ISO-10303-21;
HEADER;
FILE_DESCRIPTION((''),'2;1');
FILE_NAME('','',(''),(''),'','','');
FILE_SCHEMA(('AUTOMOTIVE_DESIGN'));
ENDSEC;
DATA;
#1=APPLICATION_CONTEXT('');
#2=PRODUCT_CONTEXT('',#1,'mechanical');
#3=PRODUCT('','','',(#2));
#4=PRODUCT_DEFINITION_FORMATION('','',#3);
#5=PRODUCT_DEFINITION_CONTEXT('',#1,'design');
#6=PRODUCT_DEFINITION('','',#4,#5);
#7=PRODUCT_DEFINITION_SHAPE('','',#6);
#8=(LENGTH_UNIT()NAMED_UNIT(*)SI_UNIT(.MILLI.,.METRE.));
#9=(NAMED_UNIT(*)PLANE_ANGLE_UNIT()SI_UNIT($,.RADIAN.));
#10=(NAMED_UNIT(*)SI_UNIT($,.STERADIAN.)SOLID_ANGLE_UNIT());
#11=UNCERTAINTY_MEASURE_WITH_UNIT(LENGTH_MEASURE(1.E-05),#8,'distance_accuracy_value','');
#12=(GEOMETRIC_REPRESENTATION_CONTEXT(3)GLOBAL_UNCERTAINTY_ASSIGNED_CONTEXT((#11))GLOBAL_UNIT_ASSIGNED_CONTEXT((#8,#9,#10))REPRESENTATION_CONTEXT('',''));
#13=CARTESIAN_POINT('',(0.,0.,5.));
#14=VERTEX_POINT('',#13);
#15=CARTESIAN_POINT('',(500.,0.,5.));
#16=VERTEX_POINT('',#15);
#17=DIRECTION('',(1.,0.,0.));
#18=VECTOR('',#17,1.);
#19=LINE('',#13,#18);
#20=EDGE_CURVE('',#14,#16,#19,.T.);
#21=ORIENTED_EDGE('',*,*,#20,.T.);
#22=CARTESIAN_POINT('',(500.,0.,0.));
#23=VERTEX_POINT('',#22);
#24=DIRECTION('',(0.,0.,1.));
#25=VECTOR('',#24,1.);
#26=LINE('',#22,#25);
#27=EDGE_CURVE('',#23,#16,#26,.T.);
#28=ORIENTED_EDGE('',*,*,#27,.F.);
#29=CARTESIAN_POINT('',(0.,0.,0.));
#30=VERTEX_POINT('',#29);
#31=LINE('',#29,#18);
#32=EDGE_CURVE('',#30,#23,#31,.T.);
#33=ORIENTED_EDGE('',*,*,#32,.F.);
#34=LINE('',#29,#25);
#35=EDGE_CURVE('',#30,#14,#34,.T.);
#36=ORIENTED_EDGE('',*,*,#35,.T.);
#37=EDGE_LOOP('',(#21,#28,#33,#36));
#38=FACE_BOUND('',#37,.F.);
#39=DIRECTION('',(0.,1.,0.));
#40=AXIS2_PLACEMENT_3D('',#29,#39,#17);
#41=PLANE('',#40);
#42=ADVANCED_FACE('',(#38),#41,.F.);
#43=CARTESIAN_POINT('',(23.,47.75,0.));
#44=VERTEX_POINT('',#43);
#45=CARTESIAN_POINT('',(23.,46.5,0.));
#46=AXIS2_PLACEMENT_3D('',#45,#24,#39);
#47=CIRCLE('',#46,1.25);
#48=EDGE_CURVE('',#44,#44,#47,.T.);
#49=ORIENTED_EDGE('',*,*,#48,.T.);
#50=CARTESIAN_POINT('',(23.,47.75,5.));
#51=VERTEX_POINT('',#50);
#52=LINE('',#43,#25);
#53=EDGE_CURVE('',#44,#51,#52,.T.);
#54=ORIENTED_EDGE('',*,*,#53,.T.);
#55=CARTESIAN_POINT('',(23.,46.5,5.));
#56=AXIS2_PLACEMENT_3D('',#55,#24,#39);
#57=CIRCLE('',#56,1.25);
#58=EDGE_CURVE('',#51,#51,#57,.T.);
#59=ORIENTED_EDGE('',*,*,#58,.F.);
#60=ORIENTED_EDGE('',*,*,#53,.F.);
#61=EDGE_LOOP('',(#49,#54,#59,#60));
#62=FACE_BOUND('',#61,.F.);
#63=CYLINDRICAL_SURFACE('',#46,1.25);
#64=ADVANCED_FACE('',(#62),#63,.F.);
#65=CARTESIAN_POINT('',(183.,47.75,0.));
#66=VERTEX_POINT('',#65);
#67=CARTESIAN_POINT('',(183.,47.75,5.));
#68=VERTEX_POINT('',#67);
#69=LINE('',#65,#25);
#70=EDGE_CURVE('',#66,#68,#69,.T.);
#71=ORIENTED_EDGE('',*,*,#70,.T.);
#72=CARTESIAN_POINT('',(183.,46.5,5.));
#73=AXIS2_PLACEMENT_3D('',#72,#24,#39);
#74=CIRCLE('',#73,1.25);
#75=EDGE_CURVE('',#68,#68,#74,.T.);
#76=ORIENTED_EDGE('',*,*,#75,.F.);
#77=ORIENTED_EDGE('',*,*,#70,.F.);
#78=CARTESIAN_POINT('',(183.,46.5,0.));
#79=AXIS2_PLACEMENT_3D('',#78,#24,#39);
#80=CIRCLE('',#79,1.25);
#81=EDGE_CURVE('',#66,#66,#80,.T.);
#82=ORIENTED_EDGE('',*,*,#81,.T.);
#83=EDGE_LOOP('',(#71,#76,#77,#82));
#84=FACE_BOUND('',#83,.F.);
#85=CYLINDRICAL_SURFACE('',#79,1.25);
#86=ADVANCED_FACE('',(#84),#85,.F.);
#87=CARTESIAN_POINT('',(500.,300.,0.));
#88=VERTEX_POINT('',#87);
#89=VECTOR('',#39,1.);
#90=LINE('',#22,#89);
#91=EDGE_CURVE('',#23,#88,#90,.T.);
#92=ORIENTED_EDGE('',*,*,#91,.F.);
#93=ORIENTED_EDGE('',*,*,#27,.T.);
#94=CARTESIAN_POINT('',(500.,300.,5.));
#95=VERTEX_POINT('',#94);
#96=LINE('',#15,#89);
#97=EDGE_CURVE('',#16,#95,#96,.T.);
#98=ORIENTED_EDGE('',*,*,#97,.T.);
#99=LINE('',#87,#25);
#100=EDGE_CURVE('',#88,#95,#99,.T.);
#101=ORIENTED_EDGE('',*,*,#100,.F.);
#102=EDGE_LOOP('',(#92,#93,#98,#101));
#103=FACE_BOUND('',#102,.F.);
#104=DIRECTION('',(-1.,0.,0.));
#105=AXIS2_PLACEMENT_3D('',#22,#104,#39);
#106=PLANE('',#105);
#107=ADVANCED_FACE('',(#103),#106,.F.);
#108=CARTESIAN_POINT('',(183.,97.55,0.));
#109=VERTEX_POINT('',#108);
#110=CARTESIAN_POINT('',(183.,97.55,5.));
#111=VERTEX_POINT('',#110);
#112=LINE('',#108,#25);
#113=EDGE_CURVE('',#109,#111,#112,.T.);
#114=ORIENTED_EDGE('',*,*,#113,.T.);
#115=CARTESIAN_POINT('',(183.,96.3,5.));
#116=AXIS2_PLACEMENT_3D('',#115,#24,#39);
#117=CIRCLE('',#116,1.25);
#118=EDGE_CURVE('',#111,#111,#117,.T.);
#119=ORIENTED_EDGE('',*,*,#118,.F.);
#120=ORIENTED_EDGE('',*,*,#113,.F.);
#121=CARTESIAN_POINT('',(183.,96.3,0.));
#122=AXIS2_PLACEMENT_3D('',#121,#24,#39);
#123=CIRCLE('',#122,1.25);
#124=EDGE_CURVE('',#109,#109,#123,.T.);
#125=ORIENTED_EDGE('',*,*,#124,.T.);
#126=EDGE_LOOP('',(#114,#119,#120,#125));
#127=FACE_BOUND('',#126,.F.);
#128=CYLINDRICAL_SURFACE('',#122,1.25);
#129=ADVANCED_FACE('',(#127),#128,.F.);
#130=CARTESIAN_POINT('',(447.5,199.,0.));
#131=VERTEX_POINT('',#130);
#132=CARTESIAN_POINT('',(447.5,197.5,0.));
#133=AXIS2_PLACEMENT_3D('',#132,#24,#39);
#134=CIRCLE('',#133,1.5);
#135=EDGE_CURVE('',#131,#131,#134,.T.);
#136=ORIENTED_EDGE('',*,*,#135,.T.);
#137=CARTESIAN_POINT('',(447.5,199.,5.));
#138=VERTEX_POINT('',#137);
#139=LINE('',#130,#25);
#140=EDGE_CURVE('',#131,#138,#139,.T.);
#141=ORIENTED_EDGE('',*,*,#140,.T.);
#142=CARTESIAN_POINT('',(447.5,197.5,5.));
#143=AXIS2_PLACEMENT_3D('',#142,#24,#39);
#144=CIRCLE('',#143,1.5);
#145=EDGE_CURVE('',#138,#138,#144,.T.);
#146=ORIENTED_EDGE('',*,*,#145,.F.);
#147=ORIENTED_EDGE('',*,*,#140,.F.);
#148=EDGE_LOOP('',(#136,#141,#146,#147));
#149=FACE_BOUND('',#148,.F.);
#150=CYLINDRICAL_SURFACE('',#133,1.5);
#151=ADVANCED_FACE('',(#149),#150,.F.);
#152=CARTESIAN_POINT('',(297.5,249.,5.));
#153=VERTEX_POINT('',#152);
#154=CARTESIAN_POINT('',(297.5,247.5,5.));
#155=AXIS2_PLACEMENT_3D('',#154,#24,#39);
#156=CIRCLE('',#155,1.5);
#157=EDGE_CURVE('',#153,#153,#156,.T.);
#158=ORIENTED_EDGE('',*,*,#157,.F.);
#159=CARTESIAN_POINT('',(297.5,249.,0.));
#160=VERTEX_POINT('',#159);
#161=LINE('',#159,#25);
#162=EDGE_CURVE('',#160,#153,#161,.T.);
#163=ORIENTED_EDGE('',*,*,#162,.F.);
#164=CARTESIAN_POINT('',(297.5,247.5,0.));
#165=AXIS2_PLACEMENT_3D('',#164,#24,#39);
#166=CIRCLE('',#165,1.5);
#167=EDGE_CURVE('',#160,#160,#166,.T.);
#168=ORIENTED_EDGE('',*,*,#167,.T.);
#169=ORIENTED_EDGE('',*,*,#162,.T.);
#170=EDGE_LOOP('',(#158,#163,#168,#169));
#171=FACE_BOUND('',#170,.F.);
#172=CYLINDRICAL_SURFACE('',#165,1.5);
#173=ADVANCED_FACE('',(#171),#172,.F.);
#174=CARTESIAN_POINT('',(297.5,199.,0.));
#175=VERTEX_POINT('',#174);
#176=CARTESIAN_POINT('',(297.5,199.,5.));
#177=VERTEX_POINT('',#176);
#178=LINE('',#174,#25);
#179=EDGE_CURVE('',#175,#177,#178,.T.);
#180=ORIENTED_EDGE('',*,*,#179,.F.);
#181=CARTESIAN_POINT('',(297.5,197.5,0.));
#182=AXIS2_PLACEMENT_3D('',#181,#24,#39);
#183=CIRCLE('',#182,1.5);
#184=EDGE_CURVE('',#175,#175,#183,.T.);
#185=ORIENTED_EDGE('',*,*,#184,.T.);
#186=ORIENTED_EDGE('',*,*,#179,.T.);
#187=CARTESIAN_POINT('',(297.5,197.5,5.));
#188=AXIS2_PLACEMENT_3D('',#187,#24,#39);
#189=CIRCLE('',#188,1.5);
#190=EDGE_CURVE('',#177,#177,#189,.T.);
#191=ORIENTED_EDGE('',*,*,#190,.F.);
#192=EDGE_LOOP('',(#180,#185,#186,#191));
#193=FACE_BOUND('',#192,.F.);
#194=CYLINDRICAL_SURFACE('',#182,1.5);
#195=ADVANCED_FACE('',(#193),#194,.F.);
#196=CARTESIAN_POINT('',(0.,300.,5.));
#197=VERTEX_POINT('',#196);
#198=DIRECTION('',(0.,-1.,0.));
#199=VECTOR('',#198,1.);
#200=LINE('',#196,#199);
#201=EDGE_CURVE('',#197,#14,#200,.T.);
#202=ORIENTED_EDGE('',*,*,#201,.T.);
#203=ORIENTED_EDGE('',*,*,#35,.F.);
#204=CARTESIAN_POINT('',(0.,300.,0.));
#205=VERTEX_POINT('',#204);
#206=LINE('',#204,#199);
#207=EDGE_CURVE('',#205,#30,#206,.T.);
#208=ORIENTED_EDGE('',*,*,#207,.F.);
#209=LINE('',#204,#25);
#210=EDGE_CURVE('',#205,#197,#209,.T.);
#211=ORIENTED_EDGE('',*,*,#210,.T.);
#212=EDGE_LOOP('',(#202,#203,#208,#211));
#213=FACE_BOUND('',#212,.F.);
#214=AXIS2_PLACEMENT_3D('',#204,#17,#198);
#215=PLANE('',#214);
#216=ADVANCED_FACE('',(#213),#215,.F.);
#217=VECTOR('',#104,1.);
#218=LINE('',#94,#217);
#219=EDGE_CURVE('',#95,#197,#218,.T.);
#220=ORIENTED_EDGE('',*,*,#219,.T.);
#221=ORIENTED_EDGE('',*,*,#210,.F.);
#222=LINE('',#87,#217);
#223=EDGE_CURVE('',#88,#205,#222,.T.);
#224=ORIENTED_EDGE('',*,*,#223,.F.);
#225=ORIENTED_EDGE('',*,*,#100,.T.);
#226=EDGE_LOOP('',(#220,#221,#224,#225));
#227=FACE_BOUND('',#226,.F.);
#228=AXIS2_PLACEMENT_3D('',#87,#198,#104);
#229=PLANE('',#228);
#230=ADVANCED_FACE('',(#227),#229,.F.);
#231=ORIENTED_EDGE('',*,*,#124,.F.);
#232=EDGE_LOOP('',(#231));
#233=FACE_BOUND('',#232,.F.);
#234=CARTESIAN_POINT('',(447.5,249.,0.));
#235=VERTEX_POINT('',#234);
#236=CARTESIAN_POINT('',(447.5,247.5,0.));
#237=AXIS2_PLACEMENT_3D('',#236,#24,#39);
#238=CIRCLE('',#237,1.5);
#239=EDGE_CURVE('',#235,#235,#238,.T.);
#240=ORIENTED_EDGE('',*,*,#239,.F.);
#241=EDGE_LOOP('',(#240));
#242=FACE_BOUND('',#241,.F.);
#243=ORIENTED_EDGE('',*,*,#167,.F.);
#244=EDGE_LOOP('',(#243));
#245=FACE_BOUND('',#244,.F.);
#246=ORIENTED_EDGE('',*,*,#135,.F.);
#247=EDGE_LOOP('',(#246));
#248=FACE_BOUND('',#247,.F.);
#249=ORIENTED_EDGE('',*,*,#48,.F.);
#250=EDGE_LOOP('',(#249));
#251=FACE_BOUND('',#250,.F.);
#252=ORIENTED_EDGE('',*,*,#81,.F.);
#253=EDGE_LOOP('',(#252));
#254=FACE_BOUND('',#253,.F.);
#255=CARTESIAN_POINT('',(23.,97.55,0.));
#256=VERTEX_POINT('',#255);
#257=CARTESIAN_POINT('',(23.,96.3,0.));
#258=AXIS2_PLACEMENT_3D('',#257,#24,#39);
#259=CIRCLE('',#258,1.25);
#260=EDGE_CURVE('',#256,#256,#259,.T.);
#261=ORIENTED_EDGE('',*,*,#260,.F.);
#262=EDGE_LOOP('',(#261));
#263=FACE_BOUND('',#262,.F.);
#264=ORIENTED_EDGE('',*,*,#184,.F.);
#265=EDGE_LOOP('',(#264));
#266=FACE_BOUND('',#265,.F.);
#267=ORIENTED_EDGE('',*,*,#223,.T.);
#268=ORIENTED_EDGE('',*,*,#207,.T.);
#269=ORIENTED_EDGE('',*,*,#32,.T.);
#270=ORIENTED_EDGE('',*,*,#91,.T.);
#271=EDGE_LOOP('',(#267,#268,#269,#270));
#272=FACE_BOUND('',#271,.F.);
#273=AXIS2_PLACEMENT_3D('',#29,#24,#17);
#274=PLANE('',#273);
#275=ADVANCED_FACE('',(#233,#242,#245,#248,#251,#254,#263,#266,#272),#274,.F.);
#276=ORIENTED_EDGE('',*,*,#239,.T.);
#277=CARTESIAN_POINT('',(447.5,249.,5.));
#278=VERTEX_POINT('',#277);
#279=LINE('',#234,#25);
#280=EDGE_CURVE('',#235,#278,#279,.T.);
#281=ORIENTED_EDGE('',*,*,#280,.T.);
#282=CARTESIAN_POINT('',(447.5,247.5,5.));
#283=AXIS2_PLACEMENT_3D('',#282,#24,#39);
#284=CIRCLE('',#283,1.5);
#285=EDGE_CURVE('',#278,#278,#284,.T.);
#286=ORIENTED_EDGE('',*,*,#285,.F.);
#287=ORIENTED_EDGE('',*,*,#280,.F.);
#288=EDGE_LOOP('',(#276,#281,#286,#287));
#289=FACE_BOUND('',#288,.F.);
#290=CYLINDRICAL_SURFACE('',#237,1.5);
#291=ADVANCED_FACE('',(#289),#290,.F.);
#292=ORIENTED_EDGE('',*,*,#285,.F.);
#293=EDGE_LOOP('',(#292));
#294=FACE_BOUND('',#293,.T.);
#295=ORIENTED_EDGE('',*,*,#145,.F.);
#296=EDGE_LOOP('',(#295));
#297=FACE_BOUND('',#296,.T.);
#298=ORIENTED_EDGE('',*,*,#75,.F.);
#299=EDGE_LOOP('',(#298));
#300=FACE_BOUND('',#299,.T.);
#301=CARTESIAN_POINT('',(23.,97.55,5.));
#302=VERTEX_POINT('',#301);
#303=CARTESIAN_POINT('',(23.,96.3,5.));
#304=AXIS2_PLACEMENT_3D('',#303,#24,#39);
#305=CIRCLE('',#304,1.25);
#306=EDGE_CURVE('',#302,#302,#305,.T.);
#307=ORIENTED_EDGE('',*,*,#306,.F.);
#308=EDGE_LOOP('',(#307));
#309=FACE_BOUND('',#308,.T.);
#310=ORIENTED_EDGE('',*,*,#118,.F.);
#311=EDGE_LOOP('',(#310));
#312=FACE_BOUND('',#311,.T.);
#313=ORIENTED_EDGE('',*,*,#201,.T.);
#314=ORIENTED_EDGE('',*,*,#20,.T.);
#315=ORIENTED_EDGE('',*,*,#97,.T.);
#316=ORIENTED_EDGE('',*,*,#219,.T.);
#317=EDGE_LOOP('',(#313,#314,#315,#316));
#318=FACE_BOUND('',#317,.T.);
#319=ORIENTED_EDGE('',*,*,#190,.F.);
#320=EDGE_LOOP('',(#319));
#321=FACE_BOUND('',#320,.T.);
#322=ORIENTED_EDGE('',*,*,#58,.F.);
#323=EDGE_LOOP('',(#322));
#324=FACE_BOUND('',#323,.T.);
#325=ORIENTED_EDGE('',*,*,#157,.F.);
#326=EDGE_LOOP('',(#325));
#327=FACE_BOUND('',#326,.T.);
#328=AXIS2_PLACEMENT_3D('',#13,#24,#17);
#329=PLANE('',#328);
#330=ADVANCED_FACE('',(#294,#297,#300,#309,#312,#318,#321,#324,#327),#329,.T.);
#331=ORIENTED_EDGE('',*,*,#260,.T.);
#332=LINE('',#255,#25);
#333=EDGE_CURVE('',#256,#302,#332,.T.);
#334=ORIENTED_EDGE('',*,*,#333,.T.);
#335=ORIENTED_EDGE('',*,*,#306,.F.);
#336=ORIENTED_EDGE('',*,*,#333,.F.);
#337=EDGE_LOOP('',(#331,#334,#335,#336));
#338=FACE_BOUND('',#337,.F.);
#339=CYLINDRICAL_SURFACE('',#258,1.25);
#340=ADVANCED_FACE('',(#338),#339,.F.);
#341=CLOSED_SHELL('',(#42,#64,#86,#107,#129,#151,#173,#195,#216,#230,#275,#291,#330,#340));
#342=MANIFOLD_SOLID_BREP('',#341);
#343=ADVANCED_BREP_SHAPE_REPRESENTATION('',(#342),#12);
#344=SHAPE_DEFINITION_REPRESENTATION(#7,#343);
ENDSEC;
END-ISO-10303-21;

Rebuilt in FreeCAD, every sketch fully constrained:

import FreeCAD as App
import Part
import Sketcher

V = App.Vector

doc = App.newDocument("Part")
body = doc.addObject("PartDesign::Body", "Body")

# Sketch on XY plane
sketch1 = body.newObject("Sketcher::SketchObject", "Sketch")
sketch1.AttachmentSupport = (doc.getObject("XY_Plane"), [""])
sketch1.MapMode = "FlatFace"
sketch1.addGeometry([
    Part.LineSegment(V(0, 300, 0), V(0, 0, 0)),
    Part.LineSegment(V(0, 0, 0), V(500, 0, 0)),
    Part.LineSegment(V(500, 0, 0), V(500, 300, 0)),
    Part.LineSegment(V(500, 300, 0), V(0, 300, 0)),
], False)
sketch1.addConstraint([
    Sketcher.Constraint("Coincident", 0, 2, 1, 1),
    Sketcher.Constraint("Coincident", 1, 2, 2, 1),
    Sketcher.Constraint("Coincident", 2, 2, 3, 1),
    Sketcher.Constraint("Coincident", 3, 2, 0, 1),
    Sketcher.Constraint("Vertical", 0),
    Sketcher.Constraint("Horizontal", 1),
    Sketcher.Constraint("Vertical", 2),
    Sketcher.Constraint("Horizontal", 3),
    Sketcher.Constraint("Coincident", 0, 2, -1, 1),
    Sketcher.Constraint("DistanceX", 1, 1, 1, 2, 500.0),
    Sketcher.Constraint("DistanceY", 0, 2, 0, 1, 300.0),
])
pad1 = body.newObject("PartDesign::Pad", "Pad")
pad1.Profile = sketch1
pad1.Length = 5

# Sketch on XY plane
sketch2 = body.newObject("Sketcher::SketchObject", "Sketch001")
sketch2.AttachmentSupport = (doc.getObject("XY_Plane"), [""])
sketch2.MapMode = "FlatFace"
sketch2.addGeometry([
    Part.Circle(V(297.5, 197.5, 0), V(0, 0, 1), 1.5),
    Part.Circle(V(297.5, 247.5, 0), V(0, 0, 1), 1.5),
    Part.Circle(V(447.5, 247.5, 0), V(0, 0, 1), 1.5),
    Part.Circle(V(447.5, 197.5, 0), V(0, 0, 1), 1.5),
], False)
sketch2.addConstraint([
    Sketcher.Constraint("Equal", 0, 1),
    Sketcher.Constraint("Equal", 1, 2),
    Sketcher.Constraint("Equal", 2, 3),
    Sketcher.Constraint("Horizontal", 1, 3, 2, 3),
    Sketcher.Constraint("Horizontal", 0, 3, 3, 3),
    Sketcher.Constraint("Vertical", 0, 3, 1, 3),
    Sketcher.Constraint("Vertical", 2, 3, 3, 3),
    Sketcher.Constraint("Diameter", 0, 3.0),
    Sketcher.Constraint("DistanceY", 0, 3, 1, 3, 50.0),
    Sketcher.Constraint("DistanceX", 1, 3, 2, 3, 150.0),
    Sketcher.Constraint("DistanceX", -1, 1, 0, 3, 297.5),
    Sketcher.Constraint("DistanceY", -1, 1, 0, 3, 197.5),
])
doc.recompute()
hole = body.newObject("PartDesign::Hole", "Hole")
hole.Profile = sketch2
hole.ThreadType = "None"
hole.Diameter = 3
hole.DepthType = "ThroughAll"
hole.Reversed = True

# Sketch on XY plane
sketch3 = body.newObject("Sketcher::SketchObject", "Sketch002")
sketch3.AttachmentSupport = (doc.getObject("XY_Plane"), [""])
sketch3.MapMode = "FlatFace"
sketch3.addGeometry([
    Part.Circle(V(23, 46.5, 0), V(0, 0, 1), 1.2),
    Part.Circle(V(23, 96.3, 0), V(0, 0, 1), 1.2),
    Part.Circle(V(183, 46.5, 0), V(0, 0, 1), 1.2),
    Part.Circle(V(183, 96.3, 0), V(0, 0, 1), 1.2),
], False)
sketch3.addConstraint([
    Sketcher.Constraint("Equal", 0, 1),
    Sketcher.Constraint("Equal", 1, 2),
    Sketcher.Constraint("Equal", 2, 3),
    Sketcher.Constraint("Horizontal", 0, 3, 2, 3),
    Sketcher.Constraint("Horizontal", 1, 3, 3, 3),
    Sketcher.Constraint("Vertical", 0, 3, 1, 3),
    Sketcher.Constraint("Vertical", 2, 3, 3, 3),
    Sketcher.Constraint("Diameter", 0, 2.5),
    Sketcher.Constraint("DistanceX", -1, 1, 0, 3, 23.0),
    Sketcher.Constraint("DistanceX", -1, 1, 2, 3, 183.0),
    Sketcher.Constraint("DistanceY", -1, 1, 0, 3, 46.5),
    Sketcher.Constraint("DistanceY", -1, 1, 1, 3, 96.3),
])
doc.recompute()
hole2 = body.newObject("PartDesign::Hole", "Hole001")
hole2.Profile = sketch3
hole2.ThreadType = "None"
hole2.Diameter = 2.5
hole2.DepthType = "ThroughAll"
hole2.Reversed = True

doc.recompute()
